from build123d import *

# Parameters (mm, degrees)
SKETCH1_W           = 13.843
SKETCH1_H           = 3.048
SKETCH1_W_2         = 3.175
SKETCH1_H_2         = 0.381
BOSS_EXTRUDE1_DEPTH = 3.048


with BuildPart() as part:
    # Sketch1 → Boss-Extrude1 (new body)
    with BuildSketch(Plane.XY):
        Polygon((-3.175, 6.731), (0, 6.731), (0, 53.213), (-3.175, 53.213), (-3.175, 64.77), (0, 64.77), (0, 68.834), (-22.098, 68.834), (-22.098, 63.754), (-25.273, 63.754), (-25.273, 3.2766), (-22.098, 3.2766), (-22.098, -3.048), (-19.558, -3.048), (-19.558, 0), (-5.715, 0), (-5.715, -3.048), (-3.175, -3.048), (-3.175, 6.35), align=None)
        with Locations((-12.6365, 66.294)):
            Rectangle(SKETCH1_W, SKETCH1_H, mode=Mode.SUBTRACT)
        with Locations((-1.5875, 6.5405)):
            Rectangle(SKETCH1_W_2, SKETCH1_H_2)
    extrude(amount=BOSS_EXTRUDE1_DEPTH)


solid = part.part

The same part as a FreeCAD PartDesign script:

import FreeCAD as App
import Part
import Sketcher
Q = App.Units.Quantity

doc = App.newDocument("Part")
body = doc.addObject("PartDesign::Body", "Body")

# Sketch on XY plane
sketch1 = doc.addObject("Sketcher::SketchObject", "Sketch")
body.addObject(sketch1)
sketch1.AttachmentSupport = (doc.XY_Plane, [""])
sketch1.MapMode = "FlatFace"
sketch1.addGeometry([
    Part.LineSegment(App.Vector(-3.2, -3, 0), App.Vector(-3.2, 6.3, 0)),  # 0
    Part.LineSegment(App.Vector(-3.2, 6.3, 0), App.Vector(0, 6.3, 0)),  # 1
    Part.LineSegment(App.Vector(0, 6.3, 0), App.Vector(0, 53.2, 0)),  # 2
    Part.LineSegment(App.Vector(0, 53.2, 0), App.Vector(-3.2, 53.2, 0)),  # 3
    Part.LineSegment(App.Vector(-3.2, 53.2, 0), App.Vector(-3.2, 64.8, 0)),  # 4
    Part.LineSegment(App.Vector(-3.2, 64.8, 0), App.Vector(0, 64.8, 0)),  # 5
    Part.LineSegment(App.Vector(0, 64.8, 0), App.Vector(0, 68.8, 0)),  # 6
    Part.LineSegment(App.Vector(0, 68.8, 0), App.Vector(-22.1, 68.8, 0)),  # 7
    Part.LineSegment(App.Vector(-22.1, 68.8, 0), App.Vector(-22.1, 63.8, 0)),  # 8
    Part.LineSegment(App.Vector(-22.1, 63.8, 0), App.Vector(-25.3, 63.8, 0)),  # 9
    Part.LineSegment(App.Vector(-25.3, 63.8, 0), App.Vector(-25.3, 3.3, 0)),  # 10
    Part.LineSegment(App.Vector(-25.3, 3.3, 0), App.Vector(-22.1, 3.3, 0)),  # 11
    Part.LineSegment(App.Vector(-22.1, 3.3, 0), App.Vector(-22.1, -3, 0)),  # 12
    Part.LineSegment(App.Vector(-22.1, -3, 0), App.Vector(-19.6, -3, 0)),  # 13
    Part.LineSegment(App.Vector(-19.6, -3, 0), App.Vector(-19.6, 0, 0)),  # 14
    Part.LineSegment(App.Vector(-19.6, 0, 0), App.Vector(-5.7, 0, 0)),  # 15
    Part.LineSegment(App.Vector(-5.7, 0, 0), App.Vector(-5.7, -3, 0)),  # 16
    Part.LineSegment(App.Vector(-5.7, -3, 0), App.Vector(-3.2, -3, 0)),  # 17
    Part.LineSegment(App.Vector(-5.7, 64.8, 0), App.Vector(-19.6, 64.8, 0)),  # 18
    Part.LineSegment(App.Vector(-19.6, 64.8, 0), App.Vector(-19.6, 67.8, 0)),  # 19
    Part.LineSegment(App.Vector(-19.6, 67.8, 0), App.Vector(-5.7, 67.8, 0)),  # 20
    Part.LineSegment(App.Vector(-5.7, 67.8, 0), App.Vector(-5.7, 64.8, 0)),  # 21
], False)
sketch1.addConstraint([
    Sketcher.Constraint("Coincident", 0, 2, 1, 1),
    Sketcher.Constraint("Coincident", 1, 2, 2, 1),
    Sketcher.Constraint("Coincident", 2, 2, 3, 1),
    Sketcher.Constraint("Coincident", 3, 2, 4, 1),
    Sketcher.Constraint("Coincident", 4, 2, 5, 1),
    Sketcher.Constraint("Coincident", 5, 2, 6, 1),
    Sketcher.Constraint("Coincident", 6, 2, 7, 1),
    Sketcher.Constraint("Coincident", 7, 2, 8, 1),
    Sketcher.Constraint("Coincident", 8, 2, 9, 1),
    Sketcher.Constraint("Coincident", 9, 2, 10, 1),
    Sketcher.Constraint("Coincident", 10, 2, 11, 1),
    Sketcher.Constraint("Coincident", 11, 2, 12, 1),
    Sketcher.Constraint("Coincident", 12, 2, 13, 1),
    Sketcher.Constraint("Coincident", 13, 2, 14, 1),
    Sketcher.Constraint("Coincident", 14, 2, 15, 1),
    Sketcher.Constraint("Coincident", 15, 2, 16, 1),
    Sketcher.Constraint("Coincident", 16, 2, 17, 1),
    Sketcher.Constraint("Coincident", 17, 2, 0, 1),
    Sketcher.Constraint("Coincident", 18, 2, 19, 1),
    Sketcher.Constraint("Coincident", 19, 2, 20, 1),
    Sketcher.Constraint("Coincident", 20, 2, 21, 1),
    Sketcher.Constraint("Coincident", 21, 2, 18, 1),
    Sketcher.Constraint("Vertical", 0),
    Sketcher.Constraint("Horizontal", 1),
    Sketcher.Constraint("Vertical", 2),
    Sketcher.Constraint("Horizontal", 3),
    Sketcher.Constraint("Vertical", 4),
    Sketcher.Constraint("Horizontal", 5),
    Sketcher.Constraint("Vertical", 6),
    Sketcher.Constraint("Horizontal", 7),
    Sketcher.Constraint("Vertical", 8),
    Sketcher.Constraint("Horizontal", 9),
    Sketcher.Constraint("Vertical", 10),
    Sketcher.Constraint("Horizontal", 11),
    Sketcher.Constraint("Vertical", 12),
    Sketcher.Constraint("Horizontal", 13),
    Sketcher.Constraint("Vertical", 14),
    Sketcher.Constraint("Horizontal", 15),
    Sketcher.Constraint("Vertical", 16),
    Sketcher.Constraint("Horizontal", 17),
    Sketcher.Constraint("Horizontal", 18),
    Sketcher.Constraint("Vertical", 19),
    Sketcher.Constraint("Horizontal", 20),
    Sketcher.Constraint("Vertical", 21),
    Sketcher.Constraint("PointOnObject", 1, 2, -2),
    Sketcher.Constraint("PointOnObject", 5, 2, -2),
    Sketcher.Constraint("PointOnObject", 14, 2, -1),
    Sketcher.Constraint("Horizontal", 13, 2, 16, 2),
    Sketcher.Constraint("Horizontal", 5, 2, 18, 2),
    Sketcher.Constraint("Vertical", 0, 2, 3, 2),
    Sketcher.Constraint("Vertical", 8, 2, 11, 2),
    Sketcher.Constraint("Vertical", 14, 2, 18, 2),
    Sketcher.Constraint("Vertical", 16, 2, 20, 2),
    Sketcher.Constraint("Equal", 5, 9),
    Sketcher.Constraint("Equal", 13, 17),
    Sketcher.Constraint("Equal", 16, 19),
    Sketcher.Constraint("DistanceX", 13, 1, 13, 2, Q("0.1 in")),
    Sketcher.Constraint("DistanceY", 8, 2, 8, 1, Q("0.2 in")),
    Sketcher.Constraint("DistanceX", 7, 2, 7, 1, Q("0.87 in")),
    Sketcher.Constraint("DistanceY", 0, 1, 0, 2, Q("0.37 in")),
    Sketcher.Constraint("DistanceY", 6, 1, 6, 2, Q("0.16 in")),
    Sketcher.Constraint("DistanceY", 14, 1, 14, 2, Q("0.12 in")),
    Sketcher.Constraint("DistanceY", 0, 2, 4, 2, Q("2.3 in")),
    Sketcher.Constraint("DistanceX", 1, 1, 1, 2, Q("0.125 in")),
    Sketcher.Constraint("DistanceY", 2, 1, 2, 2, Q("1.845 in")),
    Sketcher.Constraint("DistanceY", 10, 2, 10, 1, Q("2.381 in")),
])
pad1 = doc.addObject("PartDesign::Pad", "Pad")
body.addObject(pad1)
pad1.Profile = sketch1
pad1.Length = Q("0.12 in")

doc.recompute()
